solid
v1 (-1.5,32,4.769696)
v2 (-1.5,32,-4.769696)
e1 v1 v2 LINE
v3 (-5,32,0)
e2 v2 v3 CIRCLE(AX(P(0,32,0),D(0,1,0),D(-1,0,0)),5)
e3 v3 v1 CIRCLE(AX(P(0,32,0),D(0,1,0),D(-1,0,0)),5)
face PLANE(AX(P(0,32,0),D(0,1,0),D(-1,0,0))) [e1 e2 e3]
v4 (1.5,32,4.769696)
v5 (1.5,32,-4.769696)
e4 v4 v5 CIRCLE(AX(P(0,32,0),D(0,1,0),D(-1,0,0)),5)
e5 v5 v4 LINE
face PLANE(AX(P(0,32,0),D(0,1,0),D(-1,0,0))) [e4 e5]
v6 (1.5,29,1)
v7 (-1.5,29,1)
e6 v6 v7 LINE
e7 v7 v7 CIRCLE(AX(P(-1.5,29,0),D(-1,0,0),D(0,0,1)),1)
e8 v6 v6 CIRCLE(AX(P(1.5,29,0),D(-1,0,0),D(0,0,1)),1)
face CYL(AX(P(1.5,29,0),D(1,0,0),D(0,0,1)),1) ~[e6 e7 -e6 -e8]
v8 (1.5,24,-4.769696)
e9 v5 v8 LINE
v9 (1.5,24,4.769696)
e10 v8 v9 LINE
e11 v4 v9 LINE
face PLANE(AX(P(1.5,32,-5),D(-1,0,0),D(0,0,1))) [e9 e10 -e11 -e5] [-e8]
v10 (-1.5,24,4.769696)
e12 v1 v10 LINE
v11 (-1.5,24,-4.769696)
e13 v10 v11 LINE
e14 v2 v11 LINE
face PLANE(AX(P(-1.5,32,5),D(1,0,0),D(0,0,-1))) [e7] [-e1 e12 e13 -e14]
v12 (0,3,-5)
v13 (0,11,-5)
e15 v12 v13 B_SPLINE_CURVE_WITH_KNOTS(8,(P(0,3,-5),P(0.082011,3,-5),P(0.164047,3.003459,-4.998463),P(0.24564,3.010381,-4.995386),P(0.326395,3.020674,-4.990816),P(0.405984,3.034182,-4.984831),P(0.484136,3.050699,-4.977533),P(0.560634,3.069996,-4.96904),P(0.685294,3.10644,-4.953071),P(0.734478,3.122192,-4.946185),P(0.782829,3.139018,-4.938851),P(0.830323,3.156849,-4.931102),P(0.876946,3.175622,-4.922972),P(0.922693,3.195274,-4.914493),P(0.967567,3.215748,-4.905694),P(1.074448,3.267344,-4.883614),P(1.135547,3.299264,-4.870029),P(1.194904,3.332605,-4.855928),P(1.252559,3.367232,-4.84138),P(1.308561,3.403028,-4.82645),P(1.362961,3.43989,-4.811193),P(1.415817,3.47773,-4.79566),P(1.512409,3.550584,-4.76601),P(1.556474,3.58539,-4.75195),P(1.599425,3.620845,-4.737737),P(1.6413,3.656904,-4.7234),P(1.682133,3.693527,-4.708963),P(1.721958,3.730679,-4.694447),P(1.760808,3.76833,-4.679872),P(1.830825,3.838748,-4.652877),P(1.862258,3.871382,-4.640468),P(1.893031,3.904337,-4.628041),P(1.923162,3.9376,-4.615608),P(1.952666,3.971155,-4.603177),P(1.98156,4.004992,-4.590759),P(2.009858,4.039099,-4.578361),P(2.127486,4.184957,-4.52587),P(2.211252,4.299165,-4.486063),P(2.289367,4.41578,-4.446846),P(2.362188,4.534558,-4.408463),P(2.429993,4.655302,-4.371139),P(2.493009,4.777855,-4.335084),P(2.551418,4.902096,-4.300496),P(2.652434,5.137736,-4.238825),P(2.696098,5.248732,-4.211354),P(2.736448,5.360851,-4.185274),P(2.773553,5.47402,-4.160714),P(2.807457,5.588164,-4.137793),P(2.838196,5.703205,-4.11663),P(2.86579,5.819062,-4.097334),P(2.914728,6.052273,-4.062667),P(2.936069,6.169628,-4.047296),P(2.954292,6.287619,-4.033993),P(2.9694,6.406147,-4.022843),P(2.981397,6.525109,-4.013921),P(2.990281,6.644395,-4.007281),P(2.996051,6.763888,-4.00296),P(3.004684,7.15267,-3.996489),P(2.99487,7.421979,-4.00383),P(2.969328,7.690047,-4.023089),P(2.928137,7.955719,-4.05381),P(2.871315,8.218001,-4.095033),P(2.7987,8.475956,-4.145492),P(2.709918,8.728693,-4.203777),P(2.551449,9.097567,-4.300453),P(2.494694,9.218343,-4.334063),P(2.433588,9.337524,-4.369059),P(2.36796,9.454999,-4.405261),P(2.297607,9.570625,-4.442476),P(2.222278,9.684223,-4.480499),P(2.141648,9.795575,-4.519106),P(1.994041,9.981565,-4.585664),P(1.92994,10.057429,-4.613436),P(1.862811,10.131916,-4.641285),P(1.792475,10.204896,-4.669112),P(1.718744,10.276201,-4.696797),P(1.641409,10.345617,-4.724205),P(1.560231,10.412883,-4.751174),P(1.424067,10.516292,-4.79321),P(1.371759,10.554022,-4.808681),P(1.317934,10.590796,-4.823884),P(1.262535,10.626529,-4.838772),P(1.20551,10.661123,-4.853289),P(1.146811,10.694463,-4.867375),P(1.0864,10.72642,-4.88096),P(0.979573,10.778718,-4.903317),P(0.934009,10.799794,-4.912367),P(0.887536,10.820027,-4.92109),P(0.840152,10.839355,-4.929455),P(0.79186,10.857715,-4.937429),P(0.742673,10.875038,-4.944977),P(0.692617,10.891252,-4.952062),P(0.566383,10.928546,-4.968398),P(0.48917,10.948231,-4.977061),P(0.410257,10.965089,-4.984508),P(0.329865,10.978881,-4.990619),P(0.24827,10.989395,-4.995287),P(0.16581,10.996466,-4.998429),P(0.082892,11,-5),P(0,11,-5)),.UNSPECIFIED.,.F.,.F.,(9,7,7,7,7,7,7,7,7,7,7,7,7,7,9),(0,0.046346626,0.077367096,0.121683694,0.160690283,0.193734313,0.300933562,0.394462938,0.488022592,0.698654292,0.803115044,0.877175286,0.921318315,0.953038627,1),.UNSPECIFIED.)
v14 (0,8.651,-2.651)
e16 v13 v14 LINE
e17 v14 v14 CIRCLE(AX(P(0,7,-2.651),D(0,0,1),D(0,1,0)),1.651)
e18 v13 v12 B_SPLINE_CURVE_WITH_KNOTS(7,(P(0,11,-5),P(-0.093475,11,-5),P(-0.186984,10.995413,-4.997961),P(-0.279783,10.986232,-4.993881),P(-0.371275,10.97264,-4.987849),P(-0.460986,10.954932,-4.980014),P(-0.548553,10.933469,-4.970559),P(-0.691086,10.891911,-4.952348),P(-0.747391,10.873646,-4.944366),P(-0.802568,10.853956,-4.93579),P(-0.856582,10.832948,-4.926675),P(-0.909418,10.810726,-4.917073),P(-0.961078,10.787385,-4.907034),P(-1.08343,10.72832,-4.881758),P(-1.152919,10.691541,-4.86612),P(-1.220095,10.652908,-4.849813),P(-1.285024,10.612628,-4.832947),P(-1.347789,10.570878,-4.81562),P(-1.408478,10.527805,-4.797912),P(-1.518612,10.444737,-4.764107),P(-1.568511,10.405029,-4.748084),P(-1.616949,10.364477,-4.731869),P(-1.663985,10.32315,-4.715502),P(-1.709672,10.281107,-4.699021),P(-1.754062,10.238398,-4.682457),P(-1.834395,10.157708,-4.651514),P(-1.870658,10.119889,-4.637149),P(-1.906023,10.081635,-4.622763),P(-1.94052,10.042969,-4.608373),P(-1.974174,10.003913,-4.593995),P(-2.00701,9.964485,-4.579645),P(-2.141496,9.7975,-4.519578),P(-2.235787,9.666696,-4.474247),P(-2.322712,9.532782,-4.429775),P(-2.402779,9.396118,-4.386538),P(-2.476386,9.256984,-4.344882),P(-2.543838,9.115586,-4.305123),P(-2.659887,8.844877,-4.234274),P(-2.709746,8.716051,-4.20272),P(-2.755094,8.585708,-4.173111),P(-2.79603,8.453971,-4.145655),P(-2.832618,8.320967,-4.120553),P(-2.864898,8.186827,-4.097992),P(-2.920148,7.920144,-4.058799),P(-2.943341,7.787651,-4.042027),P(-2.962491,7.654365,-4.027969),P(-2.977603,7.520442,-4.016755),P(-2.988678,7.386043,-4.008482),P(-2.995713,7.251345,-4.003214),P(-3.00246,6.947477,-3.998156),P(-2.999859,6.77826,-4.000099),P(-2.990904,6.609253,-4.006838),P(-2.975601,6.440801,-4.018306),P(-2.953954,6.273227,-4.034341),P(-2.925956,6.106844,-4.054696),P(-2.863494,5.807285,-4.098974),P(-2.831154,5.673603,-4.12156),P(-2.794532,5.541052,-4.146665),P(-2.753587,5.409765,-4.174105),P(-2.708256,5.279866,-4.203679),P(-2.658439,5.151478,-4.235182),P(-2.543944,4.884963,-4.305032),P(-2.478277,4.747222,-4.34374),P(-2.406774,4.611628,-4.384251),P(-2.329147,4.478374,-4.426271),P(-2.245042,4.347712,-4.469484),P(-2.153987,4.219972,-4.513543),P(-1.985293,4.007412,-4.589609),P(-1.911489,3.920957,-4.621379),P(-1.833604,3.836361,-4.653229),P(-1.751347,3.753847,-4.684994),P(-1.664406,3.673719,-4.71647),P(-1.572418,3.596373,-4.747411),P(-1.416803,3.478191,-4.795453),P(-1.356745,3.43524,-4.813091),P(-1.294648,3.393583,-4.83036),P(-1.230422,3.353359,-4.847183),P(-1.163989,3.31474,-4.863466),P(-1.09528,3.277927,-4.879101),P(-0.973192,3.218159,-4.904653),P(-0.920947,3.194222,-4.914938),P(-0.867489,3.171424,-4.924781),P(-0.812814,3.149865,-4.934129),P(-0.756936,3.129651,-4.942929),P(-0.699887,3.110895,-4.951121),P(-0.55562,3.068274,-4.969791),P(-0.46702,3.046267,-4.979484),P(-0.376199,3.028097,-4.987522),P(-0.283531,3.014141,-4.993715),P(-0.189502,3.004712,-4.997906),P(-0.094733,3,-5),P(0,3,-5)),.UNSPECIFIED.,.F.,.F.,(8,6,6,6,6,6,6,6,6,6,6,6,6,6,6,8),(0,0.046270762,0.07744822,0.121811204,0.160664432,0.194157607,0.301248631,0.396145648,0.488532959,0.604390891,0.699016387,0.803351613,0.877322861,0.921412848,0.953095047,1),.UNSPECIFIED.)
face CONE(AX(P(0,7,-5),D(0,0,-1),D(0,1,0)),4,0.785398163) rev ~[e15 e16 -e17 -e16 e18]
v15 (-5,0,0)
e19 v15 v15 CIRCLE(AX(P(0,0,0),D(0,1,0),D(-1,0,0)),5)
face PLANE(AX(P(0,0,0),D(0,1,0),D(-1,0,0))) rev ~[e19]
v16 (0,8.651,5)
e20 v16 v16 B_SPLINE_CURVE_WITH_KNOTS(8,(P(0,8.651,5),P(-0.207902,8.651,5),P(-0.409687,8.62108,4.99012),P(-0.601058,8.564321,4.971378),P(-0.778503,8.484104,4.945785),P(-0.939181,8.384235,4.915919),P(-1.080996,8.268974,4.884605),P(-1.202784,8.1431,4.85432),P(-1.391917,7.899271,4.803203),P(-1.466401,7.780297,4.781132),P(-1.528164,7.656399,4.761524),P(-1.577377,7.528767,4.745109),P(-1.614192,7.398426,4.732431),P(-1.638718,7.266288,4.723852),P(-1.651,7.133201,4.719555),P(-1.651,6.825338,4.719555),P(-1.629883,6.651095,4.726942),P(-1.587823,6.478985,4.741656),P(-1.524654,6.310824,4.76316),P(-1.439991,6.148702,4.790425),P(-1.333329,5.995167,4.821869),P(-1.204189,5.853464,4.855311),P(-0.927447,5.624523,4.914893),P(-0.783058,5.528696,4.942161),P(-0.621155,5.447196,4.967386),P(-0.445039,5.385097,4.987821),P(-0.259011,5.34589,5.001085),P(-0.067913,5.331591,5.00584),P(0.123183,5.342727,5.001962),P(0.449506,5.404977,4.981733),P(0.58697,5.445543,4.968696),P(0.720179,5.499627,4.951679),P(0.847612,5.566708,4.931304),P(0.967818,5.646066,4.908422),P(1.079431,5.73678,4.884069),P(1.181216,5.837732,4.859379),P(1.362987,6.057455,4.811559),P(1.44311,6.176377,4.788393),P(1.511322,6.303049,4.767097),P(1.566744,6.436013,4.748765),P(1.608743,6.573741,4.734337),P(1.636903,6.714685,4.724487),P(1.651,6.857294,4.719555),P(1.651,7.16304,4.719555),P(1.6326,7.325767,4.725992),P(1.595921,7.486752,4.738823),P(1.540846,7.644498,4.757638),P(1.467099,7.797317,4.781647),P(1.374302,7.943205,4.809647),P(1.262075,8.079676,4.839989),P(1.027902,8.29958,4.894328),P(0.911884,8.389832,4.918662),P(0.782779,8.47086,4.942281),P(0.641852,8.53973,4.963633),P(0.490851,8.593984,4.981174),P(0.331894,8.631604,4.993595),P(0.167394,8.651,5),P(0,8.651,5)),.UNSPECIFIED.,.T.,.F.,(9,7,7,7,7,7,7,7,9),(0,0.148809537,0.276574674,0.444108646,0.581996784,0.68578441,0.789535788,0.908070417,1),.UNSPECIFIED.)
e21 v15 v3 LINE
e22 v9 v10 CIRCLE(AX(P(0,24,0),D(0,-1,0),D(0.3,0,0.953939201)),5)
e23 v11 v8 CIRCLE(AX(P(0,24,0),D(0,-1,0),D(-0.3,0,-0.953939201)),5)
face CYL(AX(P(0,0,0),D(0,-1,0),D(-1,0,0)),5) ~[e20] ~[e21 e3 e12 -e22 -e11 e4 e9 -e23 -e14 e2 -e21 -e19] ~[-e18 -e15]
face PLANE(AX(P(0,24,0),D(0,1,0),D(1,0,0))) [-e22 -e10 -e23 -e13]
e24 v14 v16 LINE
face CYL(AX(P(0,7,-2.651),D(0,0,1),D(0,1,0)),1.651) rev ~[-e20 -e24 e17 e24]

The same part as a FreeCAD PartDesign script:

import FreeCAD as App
import Part
import Sketcher


def add_polygon(sketch, points):
    """Adds a closed chain of lines whose ends are joined by coincident constraints."""
    first, n = sketch.GeometryCount, len(points)
    for a, b in zip(points, points[1:] + points[:1]):
        sketch.addGeometry(Part.LineSegment(App.Vector(*a, 0), App.Vector(*b, 0)), False)
    for i in range(n):
        sketch.addConstraint(Sketcher.Constraint("Coincident", first + i, 2, first + (i + 1) % n, 1))

doc = App.newDocument("Part")
body = doc.addObject("PartDesign::Body", "Body")

sketch1 = body.newObject("Sketcher::SketchObject", "Sketch")
sketch1.AttachmentSupport = (doc.getObject("XZ_Plane"), [""])
sketch1.MapMode = "FlatFace"
sketch1.addGeometry(Part.Circle(App.Vector(0, 0, 0), App.Vector(0, 0, 1), 5), False)
sketch1.addConstraint([
    Sketcher.Constraint("Coincident", 0, 3, -1, 1),
    Sketcher.Constraint("Diameter", 0, 10.0),
])
pad1 = body.newObject("PartDesign::Pad", "Pad")
pad1.Profile = sketch1
pad1.Length = 32
pad1.Reversed = True

sketch2 = body.newObject("Sketcher::SketchObject", "Sketch001")
sketch2.AttachmentSupport = (doc.getObject("XZ_Plane"), [""])
sketch2.MapMode = "FlatFace"
sketch2.AttachmentOffset = App.Placement(App.Vector(0, 0, -32), App.Rotation())
add_polygon(sketch2, [(1.5, -5), (-1.5, -5), (-1.5, 5), (1.5, 5)])
sketch2.addConstraint([
    Sketcher.Constraint("Horizontal", 0),
    Sketcher.Constraint("Vertical", 1),
    Sketcher.Constraint("Horizontal", 2),
    Sketcher.Constraint("Vertical", 3),
    Sketcher.Constraint("Symmetric", 0, 2, 2, 2, -1, 1),
    Sketcher.Constraint("DistanceX", 0, 2, 0, 1, 3.0),
    Sketcher.Constraint("DistanceY", 1, 1, 1, 2, 10.0),
])
pocket1 = body.newObject("PartDesign::Pocket", "Pocket")
pocket1.Profile = sketch2
pocket1.Length = 8
pocket1.Reversed = True

sketch3 = body.newObject("Sketcher::SketchObject", "Sketch002")
sketch3.AttachmentSupport = (doc.getObject("YZ_Plane"), [""])
sketch3.MapMode = "FlatFace"
sketch3.AttachmentOffset = App.Placement(App.Vector(0, 0, 1.5), App.Rotation())
sketch3.addGeometry(Part.Circle(App.Vector(29, 0, 0), App.Vector(0, 0, 1), 1), False)
sketch3.addConstraint([
    Sketcher.Constraint("PointOnObject", 0, 3, -1),
    Sketcher.Constraint("Diameter", 0, 2.0),
    Sketcher.Constraint("DistanceX", -1, 1, 0, 3, 29.0),
])
pad2 = body.newObject("PartDesign::Pad", "Pad001")
pad2.Profile = sketch3
pad2.Length = 3
pad2.Reversed = True

sketch4 = body.newObject("Sketcher::SketchObject", "Sketch003")
sketch4.AttachmentSupport = (doc.getObject("XY_Plane"), [""])
sketch4.MapMode = "FlatFace"
sketch4.AttachmentOffset = App.Placement(App.Vector(0, 0, -5), App.Rotation())
sketch4.addGeometry(Part.Circle(App.Vector(0, 7, 0), App.Vector(0, 0, 1), 1.7), False)
sketch4.addConstraint([
    Sketcher.Constraint("PointOnObject", 0, 3, -2),
    Sketcher.Constraint("Diameter", 0, 3.302),
    Sketcher.Constraint("DistanceY", -1, 1, 0, 3, 7.0),
])
doc.recompute()
hole = body.newObject("PartDesign::Hole", "Hole")
hole.Profile = sketch4
hole.ThreadType = "None"
hole.Diameter = 3.302
hole.DepthType = "ThroughAll"
hole.HoleCutType = "Countersink"
hole.HoleCutDiameter = 8
hole.HoleCutCountersinkAngle = 90
hole.Reversed = True

doc.recompute()
